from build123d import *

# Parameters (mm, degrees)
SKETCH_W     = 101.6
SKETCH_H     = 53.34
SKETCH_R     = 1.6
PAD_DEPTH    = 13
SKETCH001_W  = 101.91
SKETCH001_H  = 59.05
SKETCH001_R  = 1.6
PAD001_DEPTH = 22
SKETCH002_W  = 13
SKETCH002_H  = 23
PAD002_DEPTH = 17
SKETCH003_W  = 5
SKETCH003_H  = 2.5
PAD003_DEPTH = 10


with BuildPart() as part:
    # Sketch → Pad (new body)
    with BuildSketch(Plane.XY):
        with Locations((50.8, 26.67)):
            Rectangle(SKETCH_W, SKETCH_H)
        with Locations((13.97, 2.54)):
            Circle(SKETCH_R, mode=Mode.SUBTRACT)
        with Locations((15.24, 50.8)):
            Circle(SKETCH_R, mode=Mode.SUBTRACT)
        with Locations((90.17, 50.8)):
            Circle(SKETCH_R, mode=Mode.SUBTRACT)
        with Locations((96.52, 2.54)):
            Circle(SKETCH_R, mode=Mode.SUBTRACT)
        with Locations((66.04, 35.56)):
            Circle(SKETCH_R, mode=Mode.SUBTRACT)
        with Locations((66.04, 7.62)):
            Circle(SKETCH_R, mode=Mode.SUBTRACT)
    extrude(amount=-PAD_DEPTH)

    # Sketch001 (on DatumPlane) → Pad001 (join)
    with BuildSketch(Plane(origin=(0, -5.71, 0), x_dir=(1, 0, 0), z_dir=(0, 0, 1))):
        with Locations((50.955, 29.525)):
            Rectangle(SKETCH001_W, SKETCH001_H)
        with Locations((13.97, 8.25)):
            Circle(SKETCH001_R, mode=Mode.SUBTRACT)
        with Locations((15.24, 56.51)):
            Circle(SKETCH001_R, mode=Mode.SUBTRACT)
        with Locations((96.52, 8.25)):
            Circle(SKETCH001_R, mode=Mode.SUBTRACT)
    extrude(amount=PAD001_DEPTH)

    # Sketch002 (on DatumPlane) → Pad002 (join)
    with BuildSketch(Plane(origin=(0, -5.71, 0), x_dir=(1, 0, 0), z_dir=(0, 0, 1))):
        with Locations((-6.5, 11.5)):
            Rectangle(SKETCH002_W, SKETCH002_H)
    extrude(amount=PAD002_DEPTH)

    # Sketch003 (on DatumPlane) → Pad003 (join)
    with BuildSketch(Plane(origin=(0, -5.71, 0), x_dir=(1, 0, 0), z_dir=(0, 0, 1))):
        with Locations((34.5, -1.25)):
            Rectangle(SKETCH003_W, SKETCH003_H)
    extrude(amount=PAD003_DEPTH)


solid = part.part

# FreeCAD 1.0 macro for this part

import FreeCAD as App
import Part
import Sketcher

V = App.Vector
Q = App.Units.Quantity

doc = App.newDocument("Part")
body = doc.addObject("PartDesign::Body", "Body")

# Sketch on XY plane
sketch1 = body.newObject("Sketcher::SketchObject", "Sketch")
sketch1.AttachmentSupport = (doc.getObject("XY_Plane"), [""])
sketch1.MapMode = "FlatFace"
sketch1.addGeometry([
    Part.LineSegment(V(0, 53.3, 0), V(0, 0, 0)),  # 0
    Part.LineSegment(V(0, 0, 0), V(101.6, 0, 0)),  # 1
    Part.LineSegment(V(101.6, 0, 0), V(101.6, 53.3, 0)),  # 2
    Part.LineSegment(V(101.6, 53.3, 0), V(0, 53.3, 0)),  # 3
    Part.Circle(V(14, 2.5, 0), V(0, 0, 1), 1.6),  # 4
    Part.Circle(V(66, 7.6, 0), V(0, 0, 1), 1.6),  # 5
    Part.Circle(V(96.5, 2.5, 0), V(0, 0, 1), 1.6),  # 6
    Part.Circle(V(15.2, 50.8, 0), V(0, 0, 1), 1.6),  # 7
    Part.Circle(V(66, 35.6, 0), V(0, 0, 1), 1.6),  # 8
    Part.Circle(V(90.2, 50.8, 0), V(0, 0, 1), 1.6),  # 9
], False)
sketch1.addConstraint([
    Sketcher.Constraint("Coincident", 0, 2, 1, 1),
    Sketcher.Constraint("Coincident", 1, 2, 2, 1),
    Sketcher.Constraint("Coincident", 2, 2, 3, 1),
    Sketcher.Constraint("Coincident", 3, 2, 0, 1),
    Sketcher.Constraint("Vertical", 0),
    Sketcher.Constraint("Horizontal", 1),
    Sketcher.Constraint("Vertical", 2),
    Sketcher.Constraint("Horizontal", 3),
    Sketcher.Constraint("Coincident", 0, 2, -1, 1),
    Sketcher.Constraint("Equal", 4, 5),
    Sketcher.Constraint("Equal", 5, 6),
    Sketcher.Constraint("Equal", 6, 7),
    Sketcher.Constraint("Equal", 7, 8),
    Sketcher.Constraint("Equal", 8, 9),
    Sketcher.Constraint("Horizontal", 4, 3, 6, 3),
    Sketcher.Constraint("Horizontal", 7, 3, 9, 3),
    Sketcher.Constraint("Vertical", 5, 3, 8, 3),
    Sketcher.Constraint("Diameter", 4, Q("3.2 mm")),
    Sketcher.Constraint("DistanceX", 1, 1, 1, 2, Q("101.6 mm")),
    Sketcher.Constraint("DistanceY", 0, 2, 0, 1, Q("53.34 mm")),
    Sketcher.Constraint("DistanceY", -1, 1, 7, 3, Q("50.8 mm")),
    Sketcher.Constraint("DistanceX", 7, 3, 5, 3, Q("50.8 mm")),
    Sketcher.Constraint("DistanceX", 4, 3, 9, 3, Q("76.2 mm")),
    Sketcher.Constraint("DistanceY", 6, 3, 2, 2, Q("50.8 mm")),
    Sketcher.Constraint("DistanceX", -1, 1, 4, 3, Q("13.97 mm")),
    Sketcher.Constraint("DistanceX", -1, 1, 5, 3, Q("66.04 mm")),
    Sketcher.Constraint("DistanceY", -1, 1, 5, 3, Q("7.62 mm")),
    Sketcher.Constraint("DistanceX", -1, 1, 6, 3, Q("96.52 mm")),
    Sketcher.Constraint("DistanceY", -1, 1, 8, 3, Q("35.56 mm")),
])
pad1 = body.newObject("PartDesign::Pad", "Pad")
pad1.Profile = sketch1
pad1.Length = 13
pad1.Reversed = True

# Sketch on XY plane
sketch2 = body.newObject("Sketcher::SketchObject", "Sketch001")
sketch2.AttachmentSupport = (doc.getObject("XY_Plane"), [""])
sketch2.MapMode = "FlatFace"
sketch2.addGeometry([
    Part.LineSegment(V(0, 53.3, 0), V(0, -5.7, 0)),  # 0
    Part.LineSegment(V(0, -5.7, 0), V(101.9, -5.7, 0)),  # 1
    Part.LineSegment(V(101.9, -5.7, 0), V(101.9, 53.3, 0)),  # 2
    Part.LineSegment(V(101.9, 53.3, 0), V(0, 53.3, 0)),  # 3
    Part.Circle(V(14, 2.5, 0), V(0, 0, 1), 1.6),  # 4
    Part.Circle(V(96.5, 2.5, 0), V(0, 0, 1), 1.6),  # 5
    Part.Circle(V(15.2, 50.8, 0), V(0, 0, 1), 1.6),  # 6
], False)
sketch2.addConstraint([
    Sketcher.Constraint("Coincident", 0, 2, 1, 1),
    Sketcher.Constraint("Coincident", 1, 2, 2, 1),
    Sketcher.Constraint("Coincident", 2, 2, 3, 1),
    Sketcher.Constraint("Coincident", 3, 2, 0, 1),
    Sketcher.Constraint("Vertical", 0),
    Sketcher.Constraint("Horizontal", 1),
    Sketcher.Constraint("Vertical", 2),
    Sketcher.Constraint("Horizontal", 3),
    Sketcher.Constraint("Equal", 4, 5),
    Sketcher.Constraint("Equal", 5, 6),
    Sketcher.Constraint("PointOnObject", 0, 2, -2),
    Sketcher.Constraint("Horizontal", 4, 3, 5, 3),
    Sketcher.Constraint("Diameter", 4, Q("3.2 mm")),
    Sketcher.Constraint("DistanceX", 1, 1, 1, 2, Q("101.91 mm")),
    Sketcher.Constraint("DistanceY", 0, 2, 0, 1, Q("59.05 mm")),
    Sketcher.Constraint("DistanceY", -1, 1, 6, 3, Q("50.8 mm")),
    Sketcher.Constraint("DistanceY", 5, 3, 2, 2, Q("50.8 mm")),
    Sketcher.Constraint("DistanceX", -1, 1, 4, 3, Q("13.97 mm")),
    Sketcher.Constraint("DistanceY", -1, 1, 4, 3, Q("2.54 mm")),
    Sketcher.Constraint("DistanceX", -1, 1, 5, 3, Q("96.52 mm")),
    Sketcher.Constraint("DistanceX", -1, 1, 6, 3, Q("15.24 mm")),
])
pad2 = body.newObject("PartDesign::Pad", "Pad001")
pad2.Profile = sketch2
pad2.Length = 22

# Sketch on XY plane
sketch3 = body.newObject("Sketcher::SketchObject", "Sketch002")
sketch3.AttachmentSupport = (doc.getObject("XY_Plane"), [""])
sketch3.MapMode = "FlatFace"
sketch3.addGeometry([
    Part.LineSegment(V(-13, 17, 0), V(-13, -6, 0)),
    Part.LineSegment(V(-13, -6, 0), V(0, -6, 0)),
    Part.LineSegment(V(0, -6, 0), V(0, 17, 0)),
    Part.LineSegment(V(0, 17, 0), V(-13, 17, 0)),
], False)
sketch3.addConstraint([
    Sketcher.Constraint("Coincident", 0, 2, 1, 1),
    Sketcher.Constraint("Coincident", 1, 2, 2, 1),
    Sketcher.Constraint("Coincident", 2, 2, 3, 1),
    Sketcher.Constraint("Coincident", 3, 2, 0, 1),
    Sketcher.Constraint("Vertical", 0),
    Sketcher.Constraint("Horizontal", 1),
    Sketcher.Constraint("Vertical", 2),
    Sketcher.Constraint("Horizontal", 3),
    Sketcher.Constraint("PointOnObject", 1, 2, -2),
    Sketcher.Constraint("DistanceX", 1, 1, 1, 2, Q("13 mm")),
    Sketcher.Constraint("DistanceY", 0, 2, 0, 1, Q("23 mm")),
    Sketcher.Constraint("DistanceY", 0, 2, -1, 1, Q("5.71 mm")),
])
pad3 = body.newObject("PartDesign::Pad", "Pad002")
pad3.Profile = sketch3
pad3.Length = 17

# Sketch on XY plane
sketch4 = body.newObject("Sketcher::SketchObject", "Sketch003")
sketch4.AttachmentSupport = (doc.getObject("XY_Plane"), [""])
sketch4.MapMode = "FlatFace"
sketch4.addGeometry([
    Part.LineSegment(V(32, -5.7, 0), V(32, -8.2, 0)),
    Part.LineSegment(V(32, -8.2, 0), V(37, -8.2, 0)),
    Part.LineSegment(V(37, -8.2, 0), V(37, -5.7, 0)),
    Part.LineSegment(V(37, -5.7, 0), V(32, -5.7, 0)),
], False)
sketch4.addConstraint([
    Sketcher.Constraint("Coincident", 0, 2, 1, 1),
    Sketcher.Constraint("Coincident", 1, 2, 2, 1),
    Sketcher.Constraint("Coincident", 2, 2, 3, 1),
    Sketcher.Constraint("Coincident", 3, 2, 0, 1),
    Sketcher.Constraint("Vertical", 0),
    Sketcher.Constraint("Horizontal", 1),
    Sketcher.Constraint("Vertical", 2),
    Sketcher.Constraint("Horizontal", 3),
    Sketcher.Constraint("DistanceX", 1, 1, 1, 2, Q("5 mm")),
    Sketcher.Constraint("DistanceY", 0, 2, 0, 1, Q("2.5 mm")),
    Sketcher.Constraint("DistanceX", -1, 1, 0, 2, Q("32 mm")),
    Sketcher.Constraint("DistanceY", 0, 2, -1, 1, Q("8.21 mm")),
])
pad4 = body.newObject("PartDesign::Pad", "Pad003")
pad4.Profile = sketch4
pad4.Length = 10

doc.recompute()
